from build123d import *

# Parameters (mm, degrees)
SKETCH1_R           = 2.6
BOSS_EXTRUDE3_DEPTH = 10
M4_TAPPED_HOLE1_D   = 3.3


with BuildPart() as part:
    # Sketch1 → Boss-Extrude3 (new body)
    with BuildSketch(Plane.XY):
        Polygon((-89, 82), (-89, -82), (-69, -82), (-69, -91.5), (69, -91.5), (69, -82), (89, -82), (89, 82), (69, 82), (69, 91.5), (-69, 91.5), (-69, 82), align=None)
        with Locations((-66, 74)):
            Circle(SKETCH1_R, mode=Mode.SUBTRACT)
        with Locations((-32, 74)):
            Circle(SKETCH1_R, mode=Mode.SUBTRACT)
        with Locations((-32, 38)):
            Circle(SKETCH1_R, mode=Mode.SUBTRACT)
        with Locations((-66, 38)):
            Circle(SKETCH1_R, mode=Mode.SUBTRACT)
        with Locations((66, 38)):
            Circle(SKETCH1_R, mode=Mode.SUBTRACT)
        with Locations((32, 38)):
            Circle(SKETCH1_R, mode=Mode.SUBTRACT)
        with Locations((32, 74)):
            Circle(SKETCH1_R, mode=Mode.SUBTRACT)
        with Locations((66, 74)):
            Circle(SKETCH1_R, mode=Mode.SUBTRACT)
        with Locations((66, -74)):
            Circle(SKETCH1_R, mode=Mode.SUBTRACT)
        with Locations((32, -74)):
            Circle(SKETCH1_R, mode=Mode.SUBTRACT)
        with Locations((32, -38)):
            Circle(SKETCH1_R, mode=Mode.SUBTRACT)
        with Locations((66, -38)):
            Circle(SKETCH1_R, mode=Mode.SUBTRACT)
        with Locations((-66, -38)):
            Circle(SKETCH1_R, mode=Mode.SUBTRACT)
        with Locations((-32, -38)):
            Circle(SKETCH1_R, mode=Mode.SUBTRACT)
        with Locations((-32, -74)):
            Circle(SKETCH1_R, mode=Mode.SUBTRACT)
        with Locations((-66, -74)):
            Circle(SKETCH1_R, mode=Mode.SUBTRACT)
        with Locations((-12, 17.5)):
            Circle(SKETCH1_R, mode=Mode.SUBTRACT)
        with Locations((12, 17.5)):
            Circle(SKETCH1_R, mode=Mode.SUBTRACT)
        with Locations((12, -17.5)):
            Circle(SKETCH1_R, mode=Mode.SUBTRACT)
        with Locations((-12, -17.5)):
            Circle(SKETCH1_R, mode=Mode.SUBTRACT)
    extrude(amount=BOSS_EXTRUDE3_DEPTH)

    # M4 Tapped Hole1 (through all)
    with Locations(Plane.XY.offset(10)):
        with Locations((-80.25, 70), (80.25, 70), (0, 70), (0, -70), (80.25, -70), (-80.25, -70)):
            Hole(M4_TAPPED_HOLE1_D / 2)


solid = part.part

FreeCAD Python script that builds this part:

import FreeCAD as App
import Part
import Sketcher
Q = App.Units.Quantity

doc = App.newDocument("Part")
body = doc.addObject("PartDesign::Body", "Body")

# Sketch on XY plane
sketch1 = doc.addObject("Sketcher::SketchObject", "Sketch")
body.addObject(sketch1)
sketch1.AttachmentSupport = (doc.XY_Plane, [""])
sketch1.MapMode = "FlatFace"
sketch1.addGeometry(Part.LineSegment(App.Vector(-89, 82, 0), App.Vector(-89, -82, 0)), False)
sketch1.addGeometry(Part.LineSegment(App.Vector(-89, -82, 0), App.Vector(-69, -82, 0)), False)
sketch1.addGeometry(Part.LineSegment(App.Vector(-69, -82, 0), App.Vector(-69, -91.5, 0)), False)
sketch1.addGeometry(Part.LineSegment(App.Vector(-69, -91.5, 0), App.Vector(69, -91.5, 0)), False)
sketch1.addGeometry(Part.LineSegment(App.Vector(69, -91.5, 0), App.Vector(69, -82, 0)), False)
sketch1.addGeometry(Part.LineSegment(App.Vector(69, -82, 0), App.Vector(89, -82, 0)), False)
sketch1.addGeometry(Part.LineSegment(App.Vector(89, -82, 0), App.Vector(89, 82, 0)), False)
sketch1.addGeometry(Part.LineSegment(App.Vector(89, 82, 0), App.Vector(69, 82, 0)), False)
sketch1.addGeometry(Part.LineSegment(App.Vector(69, 82, 0), App.Vector(69, 91.5, 0)), False)
sketch1.addGeometry(Part.LineSegment(App.Vector(69, 91.5, 0), App.Vector(-69, 91.5, 0)), False)
sketch1.addGeometry(Part.LineSegment(App.Vector(-69, 91.5, 0), App.Vector(-69, 82, 0)), False)
sketch1.addGeometry(Part.LineSegment(App.Vector(-69, 82, 0), App.Vector(-89, 82, 0)), False)
sketch1.addGeometry(Part.Circle(App.Vector(-66, -74, 0), App.Vector(0, 0, 1), 2.6), False)
sketch1.addGeometry(Part.Circle(App.Vector(-32, -74, 0), App.Vector(0, 0, 1), 2.6), False)
sketch1.addGeometry(Part.Circle(App.Vector(-66, -38, 0), App.Vector(0, 0, 1), 2.6), False)
sketch1.addGeometry(Part.Circle(App.Vector(-32, -38, 0), App.Vector(0, 0, 1), 2.6), False)
sketch1.addGeometry(Part.Circle(App.Vector(-12, -17.5, 0), App.Vector(0, 0, 1), 2.6), False)
sketch1.addGeometry(Part.Circle(App.Vector(32, -74, 0), App.Vector(0, 0, 1), 2.6), False)
sketch1.addGeometry(Part.Circle(App.Vector(66, -74, 0), App.Vector(0, 0, 1), 2.6), False)
sketch1.addGeometry(Part.Circle(App.Vector(32, -38, 0), App.Vector(0, 0, 1), 2.6), False)
sketch1.addGeometry(Part.Circle(App.Vector(12, -17.5, 0), App.Vector(0, 0, 1), 2.6), False)
sketch1.addGeometry(Part.Circle(App.Vector(66, -38, 0), App.Vector(0, 0, 1), 2.6), False)
sketch1.addGeometry(Part.Circle(App.Vector(-66, 38, 0), App.Vector(0, 0, 1), 2.6), False)
sketch1.addGeometry(Part.Circle(App.Vector(-12, 17.5, 0), App.Vector(0, 0, 1), 2.6), False)
sketch1.addGeometry(Part.Circle(App.Vector(-32, 38, 0), App.Vector(0, 0, 1), 2.6), False)
sketch1.addGeometry(Part.Circle(App.Vector(-66, 74, 0), App.Vector(0, 0, 1), 2.6), False)
sketch1.addGeometry(Part.Circle(App.Vector(-32, 74, 0), App.Vector(0, 0, 1), 2.6), False)
sketch1.addGeometry(Part.Circle(App.Vector(12, 17.5, 0), App.Vector(0, 0, 1), 2.6), False)
sketch1.addGeometry(Part.Circle(App.Vector(32, 38, 0), App.Vector(0, 0, 1), 2.6), False)
sketch1.addGeometry(Part.Circle(App.Vector(66, 38, 0), App.Vector(0, 0, 1), 2.6), False)
sketch1.addGeometry(Part.Circle(App.Vector(32, 74, 0), App.Vector(0, 0, 1), 2.6), False)
sketch1.addGeometry(Part.Circle(App.Vector(66, 74, 0), App.Vector(0, 0, 1), 2.6), False)
sketch1.addConstraint(Sketcher.Constraint("Coincident", 0, 2, 1, 1))
sketch1.addConstraint(Sketcher.Constraint("Coincident", 1, 2, 2, 1))
sketch1.addConstraint(Sketcher.Constraint("Coincident", 2, 2, 3, 1))
sketch1.addConstraint(Sketcher.Constraint("Coincident", 3, 2, 4, 1))
sketch1.addConstraint(Sketcher.Constraint("Coincident", 4, 2, 5, 1))
sketch1.addConstraint(Sketcher.Constraint("Coincident", 5, 2, 6, 1))
sketch1.addConstraint(Sketcher.Constraint("Coincident", 6, 2, 7, 1))
sketch1.addConstraint(Sketcher.Constraint("Coincident", 7, 2, 8, 1))
sketch1.addConstraint(Sketcher.Constraint("Coincident", 8, 2, 9, 1))
sketch1.addConstraint(Sketcher.Constraint("Coincident", 9, 2, 10, 1))
sketch1.addConstraint(Sketcher.Constraint("Coincident", 10, 2, 11, 1))
sketch1.addConstraint(Sketcher.Constraint("Coincident", 11, 2, 0, 1))
sketch1.addConstraint(Sketcher.Constraint("Vertical", 0))
sketch1.addConstraint(Sketcher.Constraint("Horizontal", 1))
sketch1.addConstraint(Sketcher.Constraint("Vertical", 2))
sketch1.addConstraint(Sketcher.Constraint("Horizontal", 3))
sketch1.addConstraint(Sketcher.Constraint("Vertical", 4))
sketch1.addConstraint(Sketcher.Constraint("Horizontal", 5))
sketch1.addConstraint(Sketcher.Constraint("Vertical", 6))
sketch1.addConstraint(Sketcher.Constraint("Horizontal", 7))
sketch1.addConstraint(Sketcher.Constraint("Vertical", 8))
sketch1.addConstraint(Sketcher.Constraint("Horizontal", 9))
sketch1.addConstraint(Sketcher.Constraint("Vertical", 10))
sketch1.addConstraint(Sketcher.Constraint("Horizontal", 11))
sketch1.addConstraint(Sketcher.Constraint("Equal", 12, 13))
sketch1.addConstraint(Sketcher.Constraint("Equal", 13, 14))
sketch1.addConstraint(Sketcher.Constraint("Equal", 14, 15))
sketch1.addConstraint(Sketcher.Constraint("Equal", 15, 16))
sketch1.addConstraint(Sketcher.Constraint("Equal", 16, 17))
sketch1.addConstraint(Sketcher.Constraint("Equal", 17, 18))
sketch1.addConstraint(Sketcher.Constraint("Equal", 18, 19))
sketch1.addConstraint(Sketcher.Constraint("Equal", 19, 20))
sketch1.addConstraint(Sketcher.Constraint("Equal", 20, 21))
sketch1.addConstraint(Sketcher.Constraint("Equal", 21, 22))
sketch1.addConstraint(Sketcher.Constraint("Equal", 22, 23))
sketch1.addConstraint(Sketcher.Constraint("Equal", 23, 24))
sketch1.addConstraint(Sketcher.Constraint("Equal", 24, 25))
sketch1.addConstraint(Sketcher.Constraint("Equal", 25, 26))
sketch1.addConstraint(Sketcher.Constraint("Equal", 26, 27))
sketch1.addConstraint(Sketcher.Constraint("Equal", 27, 28))
sketch1.addConstraint(Sketcher.Constraint("Equal", 28, 29))
sketch1.addConstraint(Sketcher.Constraint("Equal", 29, 30))
sketch1.addConstraint(Sketcher.Constraint("Equal", 30, 31))
sketch1.addConstraint(Sketcher.Constraint("Symmetric", 21, 3, 22, 3, -1, 1))
sketch1.addConstraint(Sketcher.Constraint("Symmetric", 20, 3, 23, 3, -1, 1))
sketch1.addConstraint(Sketcher.Constraint("Symmetric", 19, 3, 24, 3, -1, 1))
sketch1.addConstraint(Sketcher.Constraint("Symmetric", 18, 3, 25, 3, -1, 1))
sketch1.addConstraint(Sketcher.Constraint("Symmetric", 17, 3, 26, 3, -1, 1))
sketch1.addConstraint(Sketcher.Constraint("Symmetric", 16, 3, 27, 3, -1, 1))
sketch1.addConstraint(Sketcher.Constraint("Symmetric", 15, 3, 28, 3, -1, 1))
sketch1.addConstraint(Sketcher.Constraint("Symmetric", 14, 3, 29, 3, -1, 1))
sketch1.addConstraint(Sketcher.Constraint("Symmetric", 13, 3, 30, 3, -1, 1))
sketch1.addConstraint(Sketcher.Constraint("Symmetric", 12, 3, 31, 3, -1, 1))
sketch1.addConstraint(Sketcher.Constraint("Symmetric", 0, 2, 6, 2, -1, 1))
sketch1.addConstraint(Sketcher.Constraint("Symmetric", 2, 2, 8, 2, -1, 1))
sketch1.addConstraint(Sketcher.Constraint("Symmetric", 4, 2, 10, 2, -1, 1))
sketch1.addConstraint(Sketcher.Constraint("Symmetric", 13, 3, 17, 3, -2))
sketch1.addConstraint(Sketcher.Constraint("Symmetric", 12, 3, 18, 3, -2))
sketch1.addConstraint(Sketcher.Constraint("Symmetric", 15, 3, 19, 3, -2))
sketch1.addConstraint(Sketcher.Constraint("Symmetric", 16, 3, 20, 3, -2))
sketch1.addConstraint(Sketcher.Constraint("Symmetric", 14, 3, 21, 3, -2))
sketch1.addConstraint(Sketcher.Constraint("Symmetric", 1, 2, 4, 2, -2))
sketch1.addConstraint(Sketcher.Constraint("Horizontal", 12, 3, 13, 3))
sketch1.addConstraint(Sketcher.Constraint("Horizontal", 14, 3, 15, 3))
sketch1.addConstraint(Sketcher.Constraint("Vertical", 12, 3, 14, 3))
sketch1.addConstraint(Sketcher.Constraint("Vertical", 13, 3, 15, 3))
sketch1.addConstraint(Sketcher.Constraint("Diameter", 12, Q("5.2 mm")))
sketch1.addConstraint(Sketcher.Constraint("DistanceX", 1, 1, 1, 2, Q("20 mm")))
sketch1.addConstraint(Sketcher.Constraint("DistanceX", 3, 1, 3, 2, Q("138 mm")))
sketch1.addConstraint(Sketcher.Constraint("DistanceY", 0, 2, 0, 1, Q("164 mm")))
sketch1.addConstraint(Sketcher.Constraint("DistanceY", 2, 2, 2, 1, Q("9.5 mm")))
sketch1.addConstraint(Sketcher.Constraint("DistanceX", 12, 3, -1, 1, Q("66 mm")))
sketch1.addConstraint(Sketcher.Constraint("DistanceY", 12, 3, -1, 1, Q("74 mm")))
sketch1.addConstraint(Sketcher.Constraint("DistanceX", 13, 3, -1, 1, Q("32 mm")))
sketch1.addConstraint(Sketcher.Constraint("DistanceY", 14, 3, -1, 1, Q("38 mm")))
sketch1.addConstraint(Sketcher.Constraint("DistanceX", 16, 3, -1, 1, Q("12 mm")))
sketch1.addConstraint(Sketcher.Constraint("DistanceY", 16, 3, 23, 3, Q("35 mm")))
pad1 = doc.addObject("PartDesign::Pad", "Pad")
body.addObject(pad1)
pad1.Profile = sketch1
pad1.Length = 10

# Sketch on XY plane
sketch2 = doc.addObject("Sketcher::SketchObject", "Sketch001")
body.addObject(sketch2)
sketch2.AttachmentSupport = (doc.XY_Plane, [""])
sketch2.MapMode = "FlatFace"
sketch2.AttachmentOffset = App.Placement(App.Vector(0, 0, 10), App.Rotation())
sketch2.addGeometry(Part.Circle(App.Vector(-80.25, 70, 0), App.Vector(0, 0, 1), 1.65), False)
sketch2.addGeometry(Part.Circle(App.Vector(80.25, 70, 0), App.Vector(0, 0, 1), 1.65), False)
sketch2.addGeometry(Part.Circle(App.Vector(0, 70, 0), App.Vector(0, 0, 1), 1.65), False)
sketch2.addGeometry(Part.Circle(App.Vector(0, -70, 0), App.Vector(0, 0, 1), 1.65), False)
sketch2.addGeometry(Part.Circle(App.Vector(80.25, -70, 0), App.Vector(0, 0, 1), 1.65), False)
sketch2.addGeometry(Part.Circle(App.Vector(-80.25, -70, 0), App.Vector(0, 0, 1), 1.65), False)
sketch2.addConstraint(Sketcher.Constraint("Equal", 0, 1))
sketch2.addConstraint(Sketcher.Constraint("Equal", 1, 2))
sketch2.addConstraint(Sketcher.Constraint("Equal", 2, 3))
sketch2.addConstraint(Sketcher.Constraint("Equal", 3, 4))
sketch2.addConstraint(Sketcher.Constraint("Equal", 4, 5))
sketch2.addConstraint(Sketcher.Constraint("Symmetric", 2, 3, 3, 3, -1, 1))
sketch2.addConstraint(Sketcher.Constraint("Symmetric", 0, 3, 4, 3, -1, 1))
sketch2.addConstraint(Sketcher.Constraint("Symmetric", 1, 3, 5, 3, -1, 1))
sketch2.addConstraint(Sketcher.Constraint("Symmetric", 0, 3, 1, 3, -2))
sketch2.addConstraint(Sketcher.Constraint("PointOnObject", 2, 3, -2))
sketch2.addConstraint(Sketcher.Constraint("Horizontal", 1, 3, 2, 3))
sketch2.addConstraint(Sketcher.Constraint("Diameter", 0, Q("3.3 mm")))
sketch2.addConstraint(Sketcher.Constraint("DistanceY", -1, 1, 0, 3, Q("70 mm")))
sketch2.addConstraint(Sketcher.Constraint("DistanceX", 0, 3, 1, 3, Q("160.5 mm")))
doc.recompute()
hole = doc.addObject("PartDesign::Hole", "Hole")
body.addObject(hole)
hole.Profile = sketch2
hole.ThreadType = "None"
hole.Diameter = 3.3
hole.DepthType = "ThroughAll"

doc.recompute()
